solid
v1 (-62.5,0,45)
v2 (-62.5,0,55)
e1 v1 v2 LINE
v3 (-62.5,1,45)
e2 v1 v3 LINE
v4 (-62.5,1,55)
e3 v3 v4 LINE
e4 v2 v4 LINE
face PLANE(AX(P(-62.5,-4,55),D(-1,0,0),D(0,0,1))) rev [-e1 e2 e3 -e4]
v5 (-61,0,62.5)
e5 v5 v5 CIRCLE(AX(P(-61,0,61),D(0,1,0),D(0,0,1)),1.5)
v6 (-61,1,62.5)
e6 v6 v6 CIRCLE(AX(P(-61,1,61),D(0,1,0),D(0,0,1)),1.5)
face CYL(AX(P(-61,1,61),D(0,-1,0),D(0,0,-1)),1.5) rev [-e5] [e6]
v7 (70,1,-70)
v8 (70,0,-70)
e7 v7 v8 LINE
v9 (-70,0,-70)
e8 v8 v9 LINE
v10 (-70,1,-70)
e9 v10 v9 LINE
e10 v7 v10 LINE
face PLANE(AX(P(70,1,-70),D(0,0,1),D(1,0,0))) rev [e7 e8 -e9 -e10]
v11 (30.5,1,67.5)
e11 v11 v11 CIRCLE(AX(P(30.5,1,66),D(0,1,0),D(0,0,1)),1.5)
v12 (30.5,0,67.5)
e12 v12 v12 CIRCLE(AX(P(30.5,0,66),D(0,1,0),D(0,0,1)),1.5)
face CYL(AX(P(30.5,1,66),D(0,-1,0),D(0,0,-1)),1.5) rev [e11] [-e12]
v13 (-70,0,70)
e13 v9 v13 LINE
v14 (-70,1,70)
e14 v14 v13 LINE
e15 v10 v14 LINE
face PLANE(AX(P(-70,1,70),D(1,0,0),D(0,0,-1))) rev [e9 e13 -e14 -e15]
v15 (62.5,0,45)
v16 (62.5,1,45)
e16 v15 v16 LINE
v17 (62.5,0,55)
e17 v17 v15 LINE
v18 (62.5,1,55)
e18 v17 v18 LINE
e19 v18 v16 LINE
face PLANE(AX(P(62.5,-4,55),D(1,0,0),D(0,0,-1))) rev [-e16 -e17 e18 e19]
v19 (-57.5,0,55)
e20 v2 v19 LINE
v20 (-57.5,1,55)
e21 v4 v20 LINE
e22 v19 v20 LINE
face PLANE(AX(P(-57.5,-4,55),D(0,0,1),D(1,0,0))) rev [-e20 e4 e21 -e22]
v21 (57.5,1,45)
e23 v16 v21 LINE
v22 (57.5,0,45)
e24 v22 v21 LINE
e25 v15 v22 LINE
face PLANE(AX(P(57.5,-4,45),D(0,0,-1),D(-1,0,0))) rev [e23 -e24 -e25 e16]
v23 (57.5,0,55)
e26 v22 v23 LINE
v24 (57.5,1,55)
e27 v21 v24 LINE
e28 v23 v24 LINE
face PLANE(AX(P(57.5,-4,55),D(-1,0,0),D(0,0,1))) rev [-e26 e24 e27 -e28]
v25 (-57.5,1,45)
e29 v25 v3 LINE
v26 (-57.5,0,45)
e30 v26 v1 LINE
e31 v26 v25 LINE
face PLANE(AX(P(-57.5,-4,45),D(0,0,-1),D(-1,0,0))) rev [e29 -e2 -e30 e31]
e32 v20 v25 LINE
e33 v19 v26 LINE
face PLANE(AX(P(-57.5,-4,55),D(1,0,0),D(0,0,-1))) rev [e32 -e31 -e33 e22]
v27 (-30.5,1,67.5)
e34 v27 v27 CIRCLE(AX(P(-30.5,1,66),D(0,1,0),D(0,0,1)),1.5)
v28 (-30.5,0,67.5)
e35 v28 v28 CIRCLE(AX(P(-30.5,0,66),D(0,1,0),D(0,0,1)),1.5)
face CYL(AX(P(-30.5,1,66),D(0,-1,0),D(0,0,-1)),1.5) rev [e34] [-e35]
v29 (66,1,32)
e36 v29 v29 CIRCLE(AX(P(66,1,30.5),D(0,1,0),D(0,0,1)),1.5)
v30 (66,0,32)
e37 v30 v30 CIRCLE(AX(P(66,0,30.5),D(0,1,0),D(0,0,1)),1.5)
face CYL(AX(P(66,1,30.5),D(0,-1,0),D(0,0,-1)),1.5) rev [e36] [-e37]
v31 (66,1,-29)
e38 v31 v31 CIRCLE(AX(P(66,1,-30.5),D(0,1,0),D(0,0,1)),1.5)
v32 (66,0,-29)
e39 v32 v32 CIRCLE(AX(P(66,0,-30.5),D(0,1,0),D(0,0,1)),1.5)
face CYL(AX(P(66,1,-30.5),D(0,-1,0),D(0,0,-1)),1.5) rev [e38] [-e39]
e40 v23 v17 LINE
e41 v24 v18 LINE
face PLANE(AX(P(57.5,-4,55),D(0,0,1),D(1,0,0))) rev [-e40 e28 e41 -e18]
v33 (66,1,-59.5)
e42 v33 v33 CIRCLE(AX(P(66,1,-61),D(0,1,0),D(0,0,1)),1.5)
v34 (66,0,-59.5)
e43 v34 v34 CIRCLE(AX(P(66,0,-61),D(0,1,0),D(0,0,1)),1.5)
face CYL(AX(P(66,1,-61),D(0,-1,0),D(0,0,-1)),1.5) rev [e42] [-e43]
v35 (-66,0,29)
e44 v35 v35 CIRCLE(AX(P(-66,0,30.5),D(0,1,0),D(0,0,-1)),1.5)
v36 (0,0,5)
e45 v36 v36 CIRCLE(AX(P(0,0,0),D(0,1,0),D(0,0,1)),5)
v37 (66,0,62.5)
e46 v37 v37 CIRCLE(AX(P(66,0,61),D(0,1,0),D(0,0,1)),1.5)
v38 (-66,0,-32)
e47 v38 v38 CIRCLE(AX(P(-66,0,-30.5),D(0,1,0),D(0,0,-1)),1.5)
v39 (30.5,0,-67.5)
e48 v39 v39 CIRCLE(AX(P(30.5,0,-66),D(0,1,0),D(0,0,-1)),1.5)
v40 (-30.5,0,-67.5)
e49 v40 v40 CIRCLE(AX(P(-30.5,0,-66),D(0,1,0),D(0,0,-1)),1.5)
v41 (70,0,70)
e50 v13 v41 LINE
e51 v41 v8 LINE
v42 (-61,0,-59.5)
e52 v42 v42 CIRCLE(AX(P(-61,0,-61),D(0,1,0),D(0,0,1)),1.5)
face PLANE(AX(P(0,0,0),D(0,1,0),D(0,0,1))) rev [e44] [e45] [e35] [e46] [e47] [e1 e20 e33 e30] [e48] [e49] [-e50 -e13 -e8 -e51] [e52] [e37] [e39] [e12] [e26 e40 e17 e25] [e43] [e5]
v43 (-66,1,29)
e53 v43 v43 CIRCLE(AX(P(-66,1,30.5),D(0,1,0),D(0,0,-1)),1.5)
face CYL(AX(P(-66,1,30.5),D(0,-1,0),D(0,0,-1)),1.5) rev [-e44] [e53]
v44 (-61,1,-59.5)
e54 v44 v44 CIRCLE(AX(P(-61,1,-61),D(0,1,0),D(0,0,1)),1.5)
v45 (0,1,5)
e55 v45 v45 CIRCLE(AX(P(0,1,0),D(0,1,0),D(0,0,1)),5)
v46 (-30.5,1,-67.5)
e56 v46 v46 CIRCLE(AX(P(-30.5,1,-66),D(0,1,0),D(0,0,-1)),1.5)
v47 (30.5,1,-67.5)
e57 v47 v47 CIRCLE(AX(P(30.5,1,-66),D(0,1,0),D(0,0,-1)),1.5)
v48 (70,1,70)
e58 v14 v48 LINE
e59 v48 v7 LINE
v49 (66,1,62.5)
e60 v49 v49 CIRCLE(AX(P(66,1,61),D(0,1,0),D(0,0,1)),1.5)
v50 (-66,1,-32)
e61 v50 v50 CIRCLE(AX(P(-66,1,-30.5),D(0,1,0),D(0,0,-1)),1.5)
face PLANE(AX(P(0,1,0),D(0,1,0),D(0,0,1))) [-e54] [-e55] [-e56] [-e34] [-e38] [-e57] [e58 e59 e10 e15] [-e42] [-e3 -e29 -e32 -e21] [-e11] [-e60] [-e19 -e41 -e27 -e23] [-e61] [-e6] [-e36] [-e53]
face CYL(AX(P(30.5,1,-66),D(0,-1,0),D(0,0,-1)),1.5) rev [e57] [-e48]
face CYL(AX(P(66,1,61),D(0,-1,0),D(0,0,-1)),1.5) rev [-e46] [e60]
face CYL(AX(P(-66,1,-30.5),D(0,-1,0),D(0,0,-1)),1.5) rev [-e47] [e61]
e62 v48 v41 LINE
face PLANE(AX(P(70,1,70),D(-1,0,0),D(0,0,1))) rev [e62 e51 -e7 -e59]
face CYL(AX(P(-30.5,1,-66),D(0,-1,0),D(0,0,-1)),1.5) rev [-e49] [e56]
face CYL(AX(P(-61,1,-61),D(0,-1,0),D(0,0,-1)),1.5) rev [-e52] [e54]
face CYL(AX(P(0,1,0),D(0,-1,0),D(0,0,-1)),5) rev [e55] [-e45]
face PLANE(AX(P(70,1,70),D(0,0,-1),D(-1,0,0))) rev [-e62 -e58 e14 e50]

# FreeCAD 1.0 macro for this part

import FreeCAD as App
import Part
import Sketcher

doc = App.newDocument("Part")
body = doc.addObject("PartDesign::Body", "Body")

sketch1 = body.newObject("Sketcher::SketchObject", "Sketch")
sketch1.AttachmentSupport = (doc.getObject("XZ_Plane"), [""])
sketch1.MapMode = "FlatFace"
sketch1.addGeometry(Part.LineSegment(App.Vector(-70, -70, 0), App.Vector(-70, 70, 0)), False)
sketch1.addGeometry(Part.LineSegment(App.Vector(-70, 70, 0), App.Vector(70, 70, 0)), False)
sketch1.addGeometry(Part.LineSegment(App.Vector(70, 70, 0), App.Vector(70, -70, 0)), False)
sketch1.addGeometry(Part.LineSegment(App.Vector(70, -70, 0), App.Vector(-70, -70, 0)), False)
sketch1.addGeometry(Part.Circle(App.Vector(-61, 61, 0), App.Vector(0, 0, 1), 1.5), False)
sketch1.addGeometry(Part.Circle(App.Vector(-30.5, 66, 0), App.Vector(0, 0, 1), 1.5), False)
sketch1.addGeometry(Part.Circle(App.Vector(-66, 30.5, 0), App.Vector(0, 0, 1), 1.5), False)
sketch1.addGeometry(Part.Circle(App.Vector(30.5, 66, 0), App.Vector(0, 0, 1), 1.5), False)
sketch1.addGeometry(Part.Circle(App.Vector(66, 61, 0), App.Vector(0, 0, 1), 1.5), False)
sketch1.addGeometry(Part.Circle(App.Vector(66, 30.5, 0), App.Vector(0, 0, 1), 1.5), False)
sketch1.addGeometry(Part.Circle(App.Vector(-66, -30.5, 0), App.Vector(0, 0, 1), 1.5), False)
sketch1.addGeometry(Part.Circle(App.Vector(-61, -61, 0), App.Vector(0, 0, 1), 1.5), False)
sketch1.addGeometry(Part.Circle(App.Vector(-30.5, -66, 0), App.Vector(0, 0, 1), 1.5), False)
sketch1.addGeometry(Part.Circle(App.Vector(0, 0, 0), App.Vector(0, 0, 1), 5), False)
sketch1.addGeometry(Part.Circle(App.Vector(66, -30.5, 0), App.Vector(0, 0, 1), 1.5), False)
sketch1.addGeometry(Part.Circle(App.Vector(30.5, -66, 0), App.Vector(0, 0, 1), 1.5), False)
sketch1.addGeometry(Part.Circle(App.Vector(66, -61, 0), App.Vector(0, 0, 1), 1.5), False)
sketch1.addConstraint(Sketcher.Constraint("Coincident", 0, 2, 1, 1))
sketch1.addConstraint(Sketcher.Constraint("Coincident", 1, 2, 2, 1))
sketch1.addConstraint(Sketcher.Constraint("Coincident", 2, 2, 3, 1))
sketch1.addConstraint(Sketcher.Constraint("Coincident", 3, 2, 0, 1))
sketch1.addConstraint(Sketcher.Constraint("Vertical", 0))
sketch1.addConstraint(Sketcher.Constraint("Horizontal", 1))
sketch1.addConstraint(Sketcher.Constraint("Vertical", 2))
sketch1.addConstraint(Sketcher.Constraint("Horizontal", 3))
sketch1.addConstraint(Sketcher.Constraint("Coincident", 13, 3, -1, 1))
sketch1.addConstraint(Sketcher.Constraint("Equal", 4, 5))
sketch1.addConstraint(Sketcher.Constraint("Equal", 5, 6))
sketch1.addConstraint(Sketcher.Constraint("Equal", 6, 7))
sketch1.addConstraint(Sketcher.Constraint("Equal", 7, 8))
sketch1.addConstraint(Sketcher.Constraint("Equal", 8, 9))
sketch1.addConstraint(Sketcher.Constraint("Equal", 9, 10))
sketch1.addConstraint(Sketcher.Constraint("Equal", 10, 11))
sketch1.addConstraint(Sketcher.Constraint("Equal", 11, 12))
sketch1.addConstraint(Sketcher.Constraint("Equal", 12, 14))
sketch1.addConstraint(Sketcher.Constraint("Equal", 14, 15))
sketch1.addConstraint(Sketcher.Constraint("Equal", 15, 16))
sketch1.addConstraint(Sketcher.Constraint("Symmetric", 9, 3, 10, 3, -1, 1))
sketch1.addConstraint(Sketcher.Constraint("Symmetric", 7, 3, 12, 3, -1, 1))
sketch1.addConstraint(Sketcher.Constraint("Symmetric", 6, 3, 14, 3, -1, 1))
sketch1.addConstraint(Sketcher.Constraint("Symmetric", 5, 3, 15, 3, -1, 1))
sketch1.addConstraint(Sketcher.Constraint("Symmetric", 0, 2, 2, 2, -1, 1))
sketch1.addConstraint(Sketcher.Constraint("Symmetric", 5, 3, 7, 3, -2))
sketch1.addConstraint(Sketcher.Constraint("Symmetric", 6, 3, 9, 3, -2))
sketch1.addConstraint(Sketcher.Constraint("Symmetric", 4, 3, 11, 3, -1))
sketch1.addConstraint(Sketcher.Constraint("Symmetric", 8, 3, 16, 3, -1))
sketch1.addConstraint(Sketcher.Constraint("Horizontal", 4, 3, 8, 3))
sketch1.addConstraint(Sketcher.Constraint("Vertical", 8, 3, 9, 3))
sketch1.addConstraint(Sketcher.Constraint("Equal", 3, 0))
sketch1.addConstraint(Sketcher.Constraint("Diameter", 4, 3.0))
sketch1.addConstraint(Sketcher.Constraint("Diameter", 13, 10.0))
sketch1.addConstraint(Sketcher.Constraint("DistanceX", 1, 1, 1, 2, 140.0))
sketch1.addConstraint(Sketcher.Constraint("DistanceX", 4, 3, -1, 1, 61.0))
sketch1.addConstraint(Sketcher.Constraint("DistanceY", -1, 1, 4, 3, 61.0))
sketch1.addConstraint(Sketcher.Constraint("DistanceY", -1, 1, 5, 3, 66.0))
sketch1.addConstraint(Sketcher.Constraint("DistanceX", 6, 3, -1, 1, 66.0))
sketch1.addConstraint(Sketcher.Constraint("DistanceX", 5, 3, 7, 3, 61.0))
sketch1.addConstraint(Sketcher.Constraint("DistanceY", 10, 3, 6, 3, 61.0))
pad1 = body.newObject("PartDesign::Pad", "Pad")
pad1.Profile = sketch1
pad1.Length = 1
pad1.Reversed = True

sketch2 = body.newObject("Sketcher::SketchObject", "Sketch001")
sketch2.AttachmentSupport = (doc.getObject("XZ_Plane"), [""])
sketch2.MapMode = "FlatFace"
sketch2.AttachmentOffset = App.Placement(App.Vector(0, 0, -1), App.Rotation())
sketch2.addGeometry(Part.LineSegment(App.Vector(58, 45, 0), App.Vector(58, 55, 0)), False)
sketch2.addGeometry(Part.LineSegment(App.Vector(58, 55, 0), App.Vector(62, 55, 0)), False)
sketch2.addGeometry(Part.LineSegment(App.Vector(62, 55, 0), App.Vector(62, 45, 0)), False)
sketch2.addGeometry(Part.LineSegment(App.Vector(62, 45, 0), App.Vector(58, 45, 0)), False)
sketch2.addGeometry(Part.LineSegment(App.Vector(-62, 45, 0), App.Vector(-62, 55, 0)), False)
sketch2.addGeometry(Part.LineSegment(App.Vector(-62, 55, 0), App.Vector(-58, 55, 0)), False)
sketch2.addGeometry(Part.LineSegment(App.Vector(-58, 55, 0), App.Vector(-58, 45, 0)), False)
sketch2.addGeometry(Part.LineSegment(App.Vector(-58, 45, 0), App.Vector(-62, 45, 0)), False)
sketch2.addConstraint(Sketcher.Constraint("Coincident", 0, 2, 1, 1))
sketch2.addConstraint(Sketcher.Constraint("Coincident", 1, 2, 2, 1))
sketch2.addConstraint(Sketcher.Constraint("Coincident", 2, 2, 3, 1))
sketch2.addConstraint(Sketcher.Constraint("Coincident", 3, 2, 0, 1))
sketch2.addConstraint(Sketcher.Constraint("Coincident", 4, 2, 5, 1))
sketch2.addConstraint(Sketcher.Constraint("Coincident", 5, 2, 6, 1))
sketch2.addConstraint(Sketcher.Constraint("Coincident", 6, 2, 7, 1))
sketch2.addConstraint(Sketcher.Constraint("Coincident", 7, 2, 4, 1))
sketch2.addConstraint(Sketcher.Constraint("Vertical", 0))
sketch2.addConstraint(Sketcher.Constraint("Horizontal", 1))
sketch2.addConstraint(Sketcher.Constraint("Vertical", 2))
sketch2.addConstraint(Sketcher.Constraint("Horizontal", 3))
sketch2.addConstraint(Sketcher.Constraint("Vertical", 4))
sketch2.addConstraint(Sketcher.Constraint("Horizontal", 5))
sketch2.addConstraint(Sketcher.Constraint("Vertical", 6))
sketch2.addConstraint(Sketcher.Constraint("Horizontal", 7))
sketch2.addConstraint(Sketcher.Constraint("Symmetric", 1, 2, 4, 2, -2))
sketch2.addConstraint(Sketcher.Constraint("Symmetric", 3, 2, 6, 2, -2))
sketch2.addConstraint(Sketcher.Constraint("DistanceX", 1, 1, 1, 2, 5.0))
sketch2.addConstraint(Sketcher.Constraint("DistanceY", 0, 1, 0, 2, 10.0))
sketch2.addConstraint(Sketcher.Constraint("DistanceY", -1, 1, 0, 2, 55.0))
sketch2.addConstraint(Sketcher.Constraint("DistanceX", 4, 2, 0, 2, 120.0))
pocket1 = body.newObject("PartDesign::Pocket", "Pocket")
pocket1.Profile = sketch2
pocket1.Length = 5
pocket1.Reversed = True

doc.recompute()
